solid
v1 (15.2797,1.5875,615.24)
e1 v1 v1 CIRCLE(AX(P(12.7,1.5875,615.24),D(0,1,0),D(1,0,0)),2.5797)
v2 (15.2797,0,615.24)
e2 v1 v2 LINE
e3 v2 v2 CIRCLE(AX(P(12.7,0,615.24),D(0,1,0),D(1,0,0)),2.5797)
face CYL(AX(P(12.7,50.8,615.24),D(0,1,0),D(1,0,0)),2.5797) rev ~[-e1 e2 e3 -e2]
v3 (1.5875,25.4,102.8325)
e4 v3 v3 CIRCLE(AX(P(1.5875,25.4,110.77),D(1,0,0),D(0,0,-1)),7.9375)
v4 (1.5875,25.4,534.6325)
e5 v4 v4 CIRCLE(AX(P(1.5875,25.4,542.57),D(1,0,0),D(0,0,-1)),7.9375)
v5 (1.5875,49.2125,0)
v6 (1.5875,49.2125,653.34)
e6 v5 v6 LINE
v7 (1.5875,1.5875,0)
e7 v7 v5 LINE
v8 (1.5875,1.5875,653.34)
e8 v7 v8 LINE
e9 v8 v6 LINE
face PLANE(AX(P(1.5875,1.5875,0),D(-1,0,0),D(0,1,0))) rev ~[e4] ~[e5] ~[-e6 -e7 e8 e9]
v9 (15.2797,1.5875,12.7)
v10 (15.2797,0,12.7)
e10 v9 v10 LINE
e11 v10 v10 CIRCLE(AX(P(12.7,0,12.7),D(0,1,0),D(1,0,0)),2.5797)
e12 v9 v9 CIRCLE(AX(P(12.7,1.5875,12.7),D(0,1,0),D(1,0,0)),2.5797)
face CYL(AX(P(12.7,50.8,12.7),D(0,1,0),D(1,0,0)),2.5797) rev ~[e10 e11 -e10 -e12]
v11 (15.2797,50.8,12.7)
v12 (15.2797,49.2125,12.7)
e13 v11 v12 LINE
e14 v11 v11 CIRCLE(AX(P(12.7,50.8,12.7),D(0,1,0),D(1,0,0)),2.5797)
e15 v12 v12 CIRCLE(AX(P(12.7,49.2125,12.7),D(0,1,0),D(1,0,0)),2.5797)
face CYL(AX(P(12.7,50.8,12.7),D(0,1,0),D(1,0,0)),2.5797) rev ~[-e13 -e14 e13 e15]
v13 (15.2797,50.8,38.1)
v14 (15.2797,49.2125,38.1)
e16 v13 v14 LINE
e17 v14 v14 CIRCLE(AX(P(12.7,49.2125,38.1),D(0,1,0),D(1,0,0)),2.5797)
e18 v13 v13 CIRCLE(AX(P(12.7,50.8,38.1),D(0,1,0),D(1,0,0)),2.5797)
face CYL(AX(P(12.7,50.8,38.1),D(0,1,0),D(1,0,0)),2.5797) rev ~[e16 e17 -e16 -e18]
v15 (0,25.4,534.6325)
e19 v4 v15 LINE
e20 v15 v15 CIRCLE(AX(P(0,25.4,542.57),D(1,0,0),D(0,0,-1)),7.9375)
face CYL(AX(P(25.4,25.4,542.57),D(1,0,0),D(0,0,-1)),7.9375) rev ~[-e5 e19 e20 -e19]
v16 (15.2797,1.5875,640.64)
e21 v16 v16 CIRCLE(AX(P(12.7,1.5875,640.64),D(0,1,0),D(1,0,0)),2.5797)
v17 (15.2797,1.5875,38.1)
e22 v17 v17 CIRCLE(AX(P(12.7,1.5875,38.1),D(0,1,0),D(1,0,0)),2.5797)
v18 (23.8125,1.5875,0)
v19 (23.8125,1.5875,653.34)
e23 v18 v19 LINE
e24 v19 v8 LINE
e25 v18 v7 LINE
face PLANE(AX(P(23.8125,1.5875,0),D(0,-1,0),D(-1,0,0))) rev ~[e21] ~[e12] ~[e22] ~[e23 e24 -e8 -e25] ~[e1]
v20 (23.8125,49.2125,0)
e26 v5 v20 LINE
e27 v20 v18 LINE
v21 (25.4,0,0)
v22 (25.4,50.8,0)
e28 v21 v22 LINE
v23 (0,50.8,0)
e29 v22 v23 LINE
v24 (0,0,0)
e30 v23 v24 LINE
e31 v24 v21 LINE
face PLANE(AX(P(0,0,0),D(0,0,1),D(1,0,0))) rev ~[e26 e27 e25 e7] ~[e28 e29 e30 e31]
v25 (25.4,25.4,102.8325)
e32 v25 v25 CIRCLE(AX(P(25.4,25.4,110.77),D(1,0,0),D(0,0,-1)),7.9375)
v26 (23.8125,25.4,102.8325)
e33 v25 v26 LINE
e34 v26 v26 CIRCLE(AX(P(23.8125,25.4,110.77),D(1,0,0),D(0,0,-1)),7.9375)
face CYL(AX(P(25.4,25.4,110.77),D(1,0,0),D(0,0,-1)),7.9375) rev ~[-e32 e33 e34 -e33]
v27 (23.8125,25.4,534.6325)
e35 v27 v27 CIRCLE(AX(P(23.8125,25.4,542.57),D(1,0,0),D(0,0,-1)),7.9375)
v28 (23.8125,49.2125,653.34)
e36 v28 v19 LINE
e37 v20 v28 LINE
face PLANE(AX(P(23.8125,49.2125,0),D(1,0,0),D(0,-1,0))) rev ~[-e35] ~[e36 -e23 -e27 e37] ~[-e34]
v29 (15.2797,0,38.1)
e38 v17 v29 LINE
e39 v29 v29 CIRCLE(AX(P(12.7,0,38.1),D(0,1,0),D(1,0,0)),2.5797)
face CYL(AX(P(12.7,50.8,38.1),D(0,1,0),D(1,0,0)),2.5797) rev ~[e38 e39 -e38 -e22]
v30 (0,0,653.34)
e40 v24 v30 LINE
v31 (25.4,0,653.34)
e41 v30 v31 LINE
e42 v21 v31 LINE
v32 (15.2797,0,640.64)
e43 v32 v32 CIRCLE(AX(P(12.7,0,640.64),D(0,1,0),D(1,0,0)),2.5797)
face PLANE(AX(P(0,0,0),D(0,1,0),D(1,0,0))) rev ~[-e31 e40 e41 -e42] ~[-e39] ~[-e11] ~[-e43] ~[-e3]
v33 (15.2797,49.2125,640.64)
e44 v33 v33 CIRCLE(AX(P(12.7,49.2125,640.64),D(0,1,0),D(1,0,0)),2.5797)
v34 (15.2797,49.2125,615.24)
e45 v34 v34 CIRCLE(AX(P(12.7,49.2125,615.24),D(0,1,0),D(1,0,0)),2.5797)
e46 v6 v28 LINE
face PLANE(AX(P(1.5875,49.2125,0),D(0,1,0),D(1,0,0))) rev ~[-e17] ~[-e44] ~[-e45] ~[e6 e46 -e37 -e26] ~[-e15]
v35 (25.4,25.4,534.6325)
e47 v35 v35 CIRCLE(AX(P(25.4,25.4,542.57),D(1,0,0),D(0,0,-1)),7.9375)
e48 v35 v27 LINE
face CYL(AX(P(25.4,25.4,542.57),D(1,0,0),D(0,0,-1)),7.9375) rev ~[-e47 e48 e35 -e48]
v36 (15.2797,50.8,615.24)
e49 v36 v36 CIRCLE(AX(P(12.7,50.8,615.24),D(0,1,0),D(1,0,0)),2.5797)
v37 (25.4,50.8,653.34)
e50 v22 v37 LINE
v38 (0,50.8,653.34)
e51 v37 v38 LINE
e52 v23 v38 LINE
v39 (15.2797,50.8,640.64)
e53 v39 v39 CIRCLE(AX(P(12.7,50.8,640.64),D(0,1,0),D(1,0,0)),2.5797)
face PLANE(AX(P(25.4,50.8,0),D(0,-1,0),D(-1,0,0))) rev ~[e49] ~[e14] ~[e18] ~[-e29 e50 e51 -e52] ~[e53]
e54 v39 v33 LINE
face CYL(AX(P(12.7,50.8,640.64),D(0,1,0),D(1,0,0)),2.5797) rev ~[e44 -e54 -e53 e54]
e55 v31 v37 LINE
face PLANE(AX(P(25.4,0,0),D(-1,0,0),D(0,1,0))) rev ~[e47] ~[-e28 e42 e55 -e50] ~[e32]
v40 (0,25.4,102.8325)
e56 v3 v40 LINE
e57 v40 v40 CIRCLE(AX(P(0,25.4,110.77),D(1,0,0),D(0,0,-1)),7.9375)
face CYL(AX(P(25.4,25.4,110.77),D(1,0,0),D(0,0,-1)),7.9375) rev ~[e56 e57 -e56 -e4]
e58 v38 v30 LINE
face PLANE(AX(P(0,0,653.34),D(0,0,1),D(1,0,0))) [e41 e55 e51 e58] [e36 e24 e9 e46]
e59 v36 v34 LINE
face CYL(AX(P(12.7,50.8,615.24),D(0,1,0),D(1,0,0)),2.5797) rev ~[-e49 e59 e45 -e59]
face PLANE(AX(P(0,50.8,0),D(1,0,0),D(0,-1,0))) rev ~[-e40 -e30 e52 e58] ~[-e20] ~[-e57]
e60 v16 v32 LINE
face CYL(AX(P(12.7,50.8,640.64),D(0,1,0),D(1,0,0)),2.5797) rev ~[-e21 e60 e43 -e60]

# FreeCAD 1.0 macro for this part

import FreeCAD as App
import Part
import Sketcher
from FreeCAD import Vector
Q = App.Units.Quantity


def add_polygon(sketch, points):
    """Adds a closed chain of lines whose ends are joined by coincident constraints."""
    first, n = sketch.GeometryCount, len(points)
    for a, b in zip(points, points[1:] + points[:1]):
        sketch.addGeometry(Part.LineSegment(App.Vector(*a, 0), App.Vector(*b, 0)), False)
    for i in range(n):
        sketch.addConstraint(Sketcher.Constraint("Coincident", first + i, 2, first + (i + 1) % n, 1))

doc = App.newDocument("Part")
body = doc.addObject("PartDesign::Body", "Body")

sketch1 = body.newObject("Sketcher::SketchObject", "Sketch")
sketch1.AttachmentSupport = (doc.getObject("XY_Plane"), [""])
sketch1.MapMode = "FlatFace"
add_polygon(sketch1, [(0, 51), (0, 0), (25, 0), (25, 51)])
add_polygon(sketch1, [(2, 2), (2, 49), (24, 49), (24, 2)])
sketch1.addConstraint(Sketcher.Constraint("Vertical", 0))
sketch1.addConstraint(Sketcher.Constraint("Horizontal", 1))
sketch1.addConstraint(Sketcher.Constraint("Vertical", 2))
sketch1.addConstraint(Sketcher.Constraint("Horizontal", 3))
sketch1.addConstraint(Sketcher.Constraint("Vertical", 4))
sketch1.addConstraint(Sketcher.Constraint("Horizontal", 5))
sketch1.addConstraint(Sketcher.Constraint("Vertical", 6))
sketch1.addConstraint(Sketcher.Constraint("Horizontal", 7))
sketch1.addConstraint(Sketcher.Constraint("Coincident", 0, 2, -1, 1))
sketch1.addConstraint(Sketcher.Constraint("DistanceX", 1, 1, 1, 2, Q("1 in")))
sketch1.addConstraint(Sketcher.Constraint("DistanceY", 0, 2, 0, 1, Q("2 in")))
sketch1.addConstraint(Sketcher.Constraint("DistanceX", -1, 1, 4, 2, Q("0.0625 in")))
sketch1.addConstraint(Sketcher.Constraint("DistanceY", -1, 1, 6, 2, Q("0.0625 in")))
sketch1.addConstraint(Sketcher.Constraint("DistanceY", 4, 2, 3, 2, Q("0.0625 in")))
sketch1.addConstraint(Sketcher.Constraint("DistanceX", 5, 2, 2, 2, Q("0.0625 in")))
pad1 = body.newObject("PartDesign::Pad", "Pad")
pad1.Profile = sketch1
pad1.Length = 653.34

sketch2 = body.newObject("Sketcher::SketchObject", "Sketch001")
sketch2.AttachmentSupport = (doc.getObject("XZ_Plane"), [""])
sketch2.MapMode = "FlatFace"
sketch2.AttachmentOffset = App.Placement(Vector(0, 0, -2 * 25.4), App.Rotation())
sketch2.addGeometry(Part.Circle(Vector(12.7, 640.6, 0), Vector(0, 0, 1), 2.6), False)
sketch2.addGeometry(Part.Circle(Vector(12.7, 615.2, 0), Vector(0, 0, 1), 2.6), False)
sketch2.addGeometry(Part.Circle(Vector(12.7, 38.1, 0), Vector(0, 0, 1), 2.6), False)
sketch2.addGeometry(Part.Circle(Vector(12.7, 12.7, 0), Vector(0, 0, 1), 2.6), False)
sketch2.addConstraint(Sketcher.Constraint("Equal", 0, 1))
sketch2.addConstraint(Sketcher.Constraint("Equal", 1, 2))
sketch2.addConstraint(Sketcher.Constraint("Equal", 2, 3))
sketch2.addConstraint(Sketcher.Constraint("Vertical", 0, 3, 1, 3))
sketch2.addConstraint(Sketcher.Constraint("Vertical", 1, 3, 2, 3))
sketch2.addConstraint(Sketcher.Constraint("Vertical", 2, 3, 3, 3))
sketch2.addConstraint(Sketcher.Constraint("Diameter", 0, Q("0.203126 in")))
sketch2.addConstraint(Sketcher.Constraint("DistanceY", 1, 3, 0, 3, Q("1 in")))
sketch2.addConstraint(Sketcher.Constraint("DistanceY", 3, 3, 2, 3, Q("1 in")))
sketch2.addConstraint(Sketcher.Constraint("DistanceX", -1, 1, 0, 3, Q("0.5 in")))
sketch2.addConstraint(Sketcher.Constraint("DistanceY", -1, 1, 3, 3, Q("0.5 in")))
sketch2.addConstraint(Sketcher.Constraint("DistanceY", -1, 1, 0, 3, Q("640.64 mm")))
pocket1 = body.newObject("PartDesign::Pocket", "Pocket")
pocket1.Profile = sketch2
pocket1.Length = 653.34
pocket1.Reversed = True

sketch3 = body.newObject("Sketcher::SketchObject", "Sketch002")
sketch3.AttachmentSupport = (doc.getObject("YZ_Plane"), [""])
sketch3.MapMode = "FlatFace"
sketch3.AttachmentOffset = App.Placement(Vector(0, 0, 1 * 25.4), App.Rotation())
sketch3.addGeometry(Part.Circle(Vector(25, 111, 0), Vector(0, 0, 1), 8), False)
sketch3.addGeometry(Part.Circle(Vector(25, 543, 0), Vector(0, 0, 1), 8), False)
sketch3.addConstraint(Sketcher.Constraint("Equal", 0, 1))
sketch3.addConstraint(Sketcher.Constraint("Vertical", 0, 3, 1, 3))
sketch3.addConstraint(Sketcher.Constraint("Diameter", 0, Q("0.625 in")))
sketch3.addConstraint(Sketcher.Constraint("DistanceX", -1, 1, 0, 3, Q("1 in")))
sketch3.addConstraint(Sketcher.Constraint("DistanceY", 0, 3, 1, 3, Q("17 in")))
sketch3.addConstraint(Sketcher.Constraint("DistanceY", -1, 1, 0, 3, Q("110.77 mm")))
pocket2 = body.newObject("PartDesign::Pocket", "Pocket001")
pocket2.Profile = sketch3
pocket2.Length = 653.34

doc.recompute()
